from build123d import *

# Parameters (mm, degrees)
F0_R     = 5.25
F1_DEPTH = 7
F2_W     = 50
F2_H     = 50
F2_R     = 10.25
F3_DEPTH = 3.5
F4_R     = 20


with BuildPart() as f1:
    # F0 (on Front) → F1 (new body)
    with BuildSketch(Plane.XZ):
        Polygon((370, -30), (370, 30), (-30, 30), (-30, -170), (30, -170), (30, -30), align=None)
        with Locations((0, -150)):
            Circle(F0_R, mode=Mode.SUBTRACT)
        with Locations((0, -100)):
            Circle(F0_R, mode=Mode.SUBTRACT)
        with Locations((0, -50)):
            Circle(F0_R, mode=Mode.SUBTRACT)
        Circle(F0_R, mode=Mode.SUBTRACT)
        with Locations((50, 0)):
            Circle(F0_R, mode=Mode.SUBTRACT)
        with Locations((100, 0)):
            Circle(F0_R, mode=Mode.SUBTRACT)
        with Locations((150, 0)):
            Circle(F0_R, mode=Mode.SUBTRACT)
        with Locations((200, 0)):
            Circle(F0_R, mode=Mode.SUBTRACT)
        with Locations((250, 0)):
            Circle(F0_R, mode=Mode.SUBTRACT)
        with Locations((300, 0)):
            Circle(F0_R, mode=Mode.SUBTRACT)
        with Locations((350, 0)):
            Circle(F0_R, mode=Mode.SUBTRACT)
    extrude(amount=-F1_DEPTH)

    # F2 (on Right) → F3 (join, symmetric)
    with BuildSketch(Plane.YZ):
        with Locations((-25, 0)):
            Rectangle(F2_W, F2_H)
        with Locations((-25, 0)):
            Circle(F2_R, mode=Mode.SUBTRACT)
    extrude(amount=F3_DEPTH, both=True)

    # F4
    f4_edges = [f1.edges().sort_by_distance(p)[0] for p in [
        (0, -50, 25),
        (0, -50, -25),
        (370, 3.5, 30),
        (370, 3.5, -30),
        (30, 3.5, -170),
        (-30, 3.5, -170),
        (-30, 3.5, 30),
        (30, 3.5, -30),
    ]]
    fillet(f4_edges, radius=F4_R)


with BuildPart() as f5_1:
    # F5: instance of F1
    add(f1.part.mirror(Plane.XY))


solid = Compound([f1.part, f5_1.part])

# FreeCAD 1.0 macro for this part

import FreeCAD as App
import Part
import Sketcher

V = App.Vector
Q = App.Units.Quantity


def edges_at(feature, points):
    """Names of the edges that pass closest to the given points."""
    edges = feature.Shape.Edges
    near = lambda p: min(range(len(edges)), key=lambda i: edges[i].distToShape(Part.Vertex(*p))[0])
    return sorted({f"Edge{near(p) + 1}" for p in points})

doc = App.newDocument("Part")
body = doc.addObject("PartDesign::Body", "Body")

# Sketch on XZ plane
sketch1 = doc.addObject("Sketcher::SketchObject", "Sketch")
body.addObject(sketch1)
sketch1.AttachmentSupport = (doc.XZ_Plane, [""])
sketch1.MapMode = "FlatFace"
sketch1.addGeometry([
    Part.LineSegment(V(370, -30, 0), V(370, 30, 0)),  # 0
    Part.LineSegment(V(370, 30, 0), V(-30, 30, 0)),  # 1
    Part.LineSegment(V(-30, 30, 0), V(-30, -170, 0)),  # 2
    Part.LineSegment(V(-30, -170, 0), V(30, -170, 0)),  # 3
    Part.LineSegment(V(30, -170, 0), V(30, -30, 0)),  # 4
    Part.LineSegment(V(30, -30, 0), V(370, -30, 0)),  # 5
    Part.Circle(V(0, -150, 0), V(0, 0, 1), 5.25),  # 6
    Part.Circle(V(0, -100, 0), V(0, 0, 1), 5.25),  # 7
    Part.Circle(V(0, -50, 0), V(0, 0, 1), 5.25),  # 8
    Part.Circle(V(0, 0, 0), V(0, 0, 1), 5.25),  # 9
    Part.Circle(V(50, 0, 0), V(0, 0, 1), 5.25),  # 10
    Part.Circle(V(100, 0, 0), V(0, 0, 1), 5.25),  # 11
    Part.Circle(V(150, 0, 0), V(0, 0, 1), 5.25),  # 12
    Part.Circle(V(200, 0, 0), V(0, 0, 1), 5.25),  # 13
    Part.Circle(V(250, 0, 0), V(0, 0, 1), 5.25),  # 14
    Part.Circle(V(300, 0, 0), V(0, 0, 1), 5.25),  # 15
    Part.Circle(V(350, 0, 0), V(0, 0, 1), 5.25),  # 16
], False)
sketch1.addConstraint([
    Sketcher.Constraint("Coincident", 0, 2, 1, 1),
    Sketcher.Constraint("Coincident", 1, 2, 2, 1),
    Sketcher.Constraint("Coincident", 2, 2, 3, 1),
    Sketcher.Constraint("Coincident", 3, 2, 4, 1),
    Sketcher.Constraint("Coincident", 4, 2, 5, 1),
    Sketcher.Constraint("Coincident", 5, 2, 0, 1),
    Sketcher.Constraint("Vertical", 0),
    Sketcher.Constraint("Horizontal", 1),
    Sketcher.Constraint("Vertical", 2),
    Sketcher.Constraint("Horizontal", 3),
    Sketcher.Constraint("Vertical", 4),
    Sketcher.Constraint("Horizontal", 5),
    Sketcher.Constraint("Coincident", 9, 3, -1, 1),
    Sketcher.Constraint("Equal", 6, 7),
    Sketcher.Constraint("Equal", 7, 8),
    Sketcher.Constraint("Equal", 8, 9),
    Sketcher.Constraint("Equal", 9, 10),
    Sketcher.Constraint("Equal", 10, 11),
    Sketcher.Constraint("Equal", 11, 12),
    Sketcher.Constraint("Equal", 12, 13),
    Sketcher.Constraint("Equal", 13, 14),
    Sketcher.Constraint("Equal", 14, 15),
    Sketcher.Constraint("Equal", 15, 16),
    Sketcher.Constraint("Symmetric", 1, 2, 4, 2, -1, 1),
    Sketcher.Constraint("PointOnObject", 6, 3, -2),
    Sketcher.Constraint("PointOnObject", 7, 3, -2),
    Sketcher.Constraint("PointOnObject", 8, 3, -2),
    Sketcher.Constraint("PointOnObject", 10, 3, -1),
    Sketcher.Constraint("PointOnObject", 11, 3, -1),
    Sketcher.Constraint("PointOnObject", 12, 3, -1),
    Sketcher.Constraint("PointOnObject", 13, 3, -1),
    Sketcher.Constraint("PointOnObject", 14, 3, -1),
    Sketcher.Constraint("PointOnObject", 15, 3, -1),
    Sketcher.Constraint("PointOnObject", 16, 3, -1),
    Sketcher.Constraint("Equal", 3, 0),
    Sketcher.Constraint("Diameter", 6, Q("10.5 mm")),
    Sketcher.Constraint("DistanceX", 1, 2, 1, 1, Q("400 mm")),
    Sketcher.Constraint("DistanceX", 3, 1, 3, 2, Q("60 mm")),
    Sketcher.Constraint("DistanceY", 2, 2, 2, 1, Q("200 mm")),
    Sketcher.Constraint("DistanceY", 6, 3, -1, 1, Q("150 mm")),
    Sketcher.Constraint("DistanceY", 7, 3, -1, 1, Q("100 mm")),
    Sketcher.Constraint("DistanceY", 8, 3, -1, 1, Q("50 mm")),
    Sketcher.Constraint("DistanceX", -1, 1, 10, 3, Q("50 mm")),
    Sketcher.Constraint("DistanceX", -1, 1, 11, 3, Q("100 mm")),
    Sketcher.Constraint("DistanceX", -1, 1, 12, 3, Q("150 mm")),
    Sketcher.Constraint("DistanceX", -1, 1, 13, 3, Q("200 mm")),
    Sketcher.Constraint("DistanceX", -1, 1, 14, 3, Q("250 mm")),
    Sketcher.Constraint("DistanceX", -1, 1, 15, 3, Q("300 mm")),
    Sketcher.Constraint("DistanceX", -1, 1, 16, 3, Q("350 mm")),
])
pad1 = doc.addObject("PartDesign::Pad", "Pad")
body.addObject(pad1)
pad1.Profile = sketch1
pad1.Length = 7
pad1.Reversed = True

# Sketch on YZ plane
sketch2 = doc.addObject("Sketcher::SketchObject", "Sketch001")
body.addObject(sketch2)
sketch2.AttachmentSupport = (doc.YZ_Plane, [""])
sketch2.MapMode = "FlatFace"
sketch2.addGeometry([
    Part.LineSegment(V(-50, 25, 0), V(-50, -25, 0)),  # 0
    Part.LineSegment(V(-50, -25, 0), V(0, -25, 0)),  # 1
    Part.LineSegment(V(0, -25, 0), V(0, 25, 0)),  # 2
    Part.LineSegment(V(0, 25, 0), V(-50, 25, 0)),  # 3
    Part.Circle(V(-25, 0, 0), V(0, 0, 1), 10.25),  # 4
], False)
sketch2.addConstraint([
    Sketcher.Constraint("Coincident", 0, 2, 1, 1),
    Sketcher.Constraint("Coincident", 1, 2, 2, 1),
    Sketcher.Constraint("Coincident", 2, 2, 3, 1),
    Sketcher.Constraint("Coincident", 3, 2, 0, 1),
    Sketcher.Constraint("Vertical", 0),
    Sketcher.Constraint("Horizontal", 1),
    Sketcher.Constraint("Vertical", 2),
    Sketcher.Constraint("Horizontal", 3),
    Sketcher.Constraint("Symmetric", 1, 2, 2, 2, -1, 1),
    Sketcher.Constraint("PointOnObject", 4, 3, -1),
    Sketcher.Constraint("Equal", 3, 0),
    Sketcher.Constraint("Diameter", 4, Q("20.5 mm")),
    Sketcher.Constraint("DistanceX", 1, 1, 1, 2, Q("50 mm")),
    Sketcher.Constraint("DistanceX", 4, 3, -1, 1, Q("25 mm")),
])
pad2 = doc.addObject("PartDesign::Pad", "Pad001")
body.addObject(pad2)
pad2.Profile = sketch2
pad2.Length = 7
pad2.Midplane = True
doc.recompute()

fillet = doc.addObject("PartDesign::Fillet", "Fillet")
body.addObject(fillet)
fillet.Base = (pad2, edges_at(pad2, [
    (0, -50, 25),
    (0, -50, -25),
    (370, 3.5, 30),
    (370, 3.5, -30),
    (30, 3.5, -170),
    (-30, 3.5, -170),
    (-30, 3.5, 30),
    (30, 3.5, -30),
]))
fillet.Radius = 20
body2 = doc.addObject("PartDesign::Body", "Body001")
doc.recompute()

mirroring = doc.addObject("Part::Mirroring", "Mirroring")
mirroring.Source = body
mirroring.Base = V(0, 0, 0)
mirroring.Normal = V(0, 0, 1)
body2.BaseFeature = mirroring
doc.recompute()
mirroring.Visibility = False

doc.recompute()
